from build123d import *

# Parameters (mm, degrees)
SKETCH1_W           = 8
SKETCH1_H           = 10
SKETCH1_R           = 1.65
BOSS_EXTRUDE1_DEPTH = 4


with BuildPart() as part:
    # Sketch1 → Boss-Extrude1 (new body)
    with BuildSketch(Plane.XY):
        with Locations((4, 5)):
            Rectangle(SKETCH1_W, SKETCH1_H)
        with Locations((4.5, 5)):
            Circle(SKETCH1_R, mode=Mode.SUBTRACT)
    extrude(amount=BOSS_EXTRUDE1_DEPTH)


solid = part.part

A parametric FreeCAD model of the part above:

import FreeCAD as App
import Part
import Sketcher
from FreeCAD import Vector
Q = App.Units.Quantity

doc = App.newDocument("Part")
body = doc.addObject("PartDesign::Body", "Body")

sketch1 = body.newObject("Sketcher::SketchObject", "Sketch")
sketch1.AttachmentSupport = (doc.getObject("XY_Plane"), [""])
sketch1.MapMode = "FlatFace"
sketch1.addGeometry([
    Part.LineSegment(Vector(0, 10, 0), Vector(0, 0, 0)),
    Part.LineSegment(Vector(0, 0, 0), Vector(8, 0, 0)),
    Part.LineSegment(Vector(8, 0, 0), Vector(8, 10, 0)),
    Part.LineSegment(Vector(8, 10, 0), Vector(0, 10, 0)),
    Part.Circle(Vector(4.5, 5, 0), Vector(0, 0, 1), 1.6),
], False)
sketch1.addConstraint([
    Sketcher.Constraint("Coincident", 0, 2, 1, 1),
    Sketcher.Constraint("Coincident", 1, 2, 2, 1),
    Sketcher.Constraint("Coincident", 2, 2, 3, 1),
    Sketcher.Constraint("Coincident", 3, 2, 0, 1),
    Sketcher.Constraint("Vertical", 0),
    Sketcher.Constraint("Horizontal", 1),
    Sketcher.Constraint("Vertical", 2),
    Sketcher.Constraint("Horizontal", 3),
    Sketcher.Constraint("Coincident", 0, 2, -1, 1),
    Sketcher.Constraint("Diameter", 4, Q("3.3 mm")),
    Sketcher.Constraint("DistanceX", 1, 1, 1, 2, Q("8 mm")),
    Sketcher.Constraint("DistanceY", 0, 2, 0, 1, Q("10 mm")),
    Sketcher.Constraint("DistanceY", -1, 1, 4, 3, Q("5 mm")),
    Sketcher.Constraint("DistanceX", -1, 1, 4, 3, Q("4.5 mm")),
])
pad1 = body.newObject("PartDesign::Pad", "Pad")
pad1.Profile = sketch1
pad1.Length = 4

doc.recompute()
